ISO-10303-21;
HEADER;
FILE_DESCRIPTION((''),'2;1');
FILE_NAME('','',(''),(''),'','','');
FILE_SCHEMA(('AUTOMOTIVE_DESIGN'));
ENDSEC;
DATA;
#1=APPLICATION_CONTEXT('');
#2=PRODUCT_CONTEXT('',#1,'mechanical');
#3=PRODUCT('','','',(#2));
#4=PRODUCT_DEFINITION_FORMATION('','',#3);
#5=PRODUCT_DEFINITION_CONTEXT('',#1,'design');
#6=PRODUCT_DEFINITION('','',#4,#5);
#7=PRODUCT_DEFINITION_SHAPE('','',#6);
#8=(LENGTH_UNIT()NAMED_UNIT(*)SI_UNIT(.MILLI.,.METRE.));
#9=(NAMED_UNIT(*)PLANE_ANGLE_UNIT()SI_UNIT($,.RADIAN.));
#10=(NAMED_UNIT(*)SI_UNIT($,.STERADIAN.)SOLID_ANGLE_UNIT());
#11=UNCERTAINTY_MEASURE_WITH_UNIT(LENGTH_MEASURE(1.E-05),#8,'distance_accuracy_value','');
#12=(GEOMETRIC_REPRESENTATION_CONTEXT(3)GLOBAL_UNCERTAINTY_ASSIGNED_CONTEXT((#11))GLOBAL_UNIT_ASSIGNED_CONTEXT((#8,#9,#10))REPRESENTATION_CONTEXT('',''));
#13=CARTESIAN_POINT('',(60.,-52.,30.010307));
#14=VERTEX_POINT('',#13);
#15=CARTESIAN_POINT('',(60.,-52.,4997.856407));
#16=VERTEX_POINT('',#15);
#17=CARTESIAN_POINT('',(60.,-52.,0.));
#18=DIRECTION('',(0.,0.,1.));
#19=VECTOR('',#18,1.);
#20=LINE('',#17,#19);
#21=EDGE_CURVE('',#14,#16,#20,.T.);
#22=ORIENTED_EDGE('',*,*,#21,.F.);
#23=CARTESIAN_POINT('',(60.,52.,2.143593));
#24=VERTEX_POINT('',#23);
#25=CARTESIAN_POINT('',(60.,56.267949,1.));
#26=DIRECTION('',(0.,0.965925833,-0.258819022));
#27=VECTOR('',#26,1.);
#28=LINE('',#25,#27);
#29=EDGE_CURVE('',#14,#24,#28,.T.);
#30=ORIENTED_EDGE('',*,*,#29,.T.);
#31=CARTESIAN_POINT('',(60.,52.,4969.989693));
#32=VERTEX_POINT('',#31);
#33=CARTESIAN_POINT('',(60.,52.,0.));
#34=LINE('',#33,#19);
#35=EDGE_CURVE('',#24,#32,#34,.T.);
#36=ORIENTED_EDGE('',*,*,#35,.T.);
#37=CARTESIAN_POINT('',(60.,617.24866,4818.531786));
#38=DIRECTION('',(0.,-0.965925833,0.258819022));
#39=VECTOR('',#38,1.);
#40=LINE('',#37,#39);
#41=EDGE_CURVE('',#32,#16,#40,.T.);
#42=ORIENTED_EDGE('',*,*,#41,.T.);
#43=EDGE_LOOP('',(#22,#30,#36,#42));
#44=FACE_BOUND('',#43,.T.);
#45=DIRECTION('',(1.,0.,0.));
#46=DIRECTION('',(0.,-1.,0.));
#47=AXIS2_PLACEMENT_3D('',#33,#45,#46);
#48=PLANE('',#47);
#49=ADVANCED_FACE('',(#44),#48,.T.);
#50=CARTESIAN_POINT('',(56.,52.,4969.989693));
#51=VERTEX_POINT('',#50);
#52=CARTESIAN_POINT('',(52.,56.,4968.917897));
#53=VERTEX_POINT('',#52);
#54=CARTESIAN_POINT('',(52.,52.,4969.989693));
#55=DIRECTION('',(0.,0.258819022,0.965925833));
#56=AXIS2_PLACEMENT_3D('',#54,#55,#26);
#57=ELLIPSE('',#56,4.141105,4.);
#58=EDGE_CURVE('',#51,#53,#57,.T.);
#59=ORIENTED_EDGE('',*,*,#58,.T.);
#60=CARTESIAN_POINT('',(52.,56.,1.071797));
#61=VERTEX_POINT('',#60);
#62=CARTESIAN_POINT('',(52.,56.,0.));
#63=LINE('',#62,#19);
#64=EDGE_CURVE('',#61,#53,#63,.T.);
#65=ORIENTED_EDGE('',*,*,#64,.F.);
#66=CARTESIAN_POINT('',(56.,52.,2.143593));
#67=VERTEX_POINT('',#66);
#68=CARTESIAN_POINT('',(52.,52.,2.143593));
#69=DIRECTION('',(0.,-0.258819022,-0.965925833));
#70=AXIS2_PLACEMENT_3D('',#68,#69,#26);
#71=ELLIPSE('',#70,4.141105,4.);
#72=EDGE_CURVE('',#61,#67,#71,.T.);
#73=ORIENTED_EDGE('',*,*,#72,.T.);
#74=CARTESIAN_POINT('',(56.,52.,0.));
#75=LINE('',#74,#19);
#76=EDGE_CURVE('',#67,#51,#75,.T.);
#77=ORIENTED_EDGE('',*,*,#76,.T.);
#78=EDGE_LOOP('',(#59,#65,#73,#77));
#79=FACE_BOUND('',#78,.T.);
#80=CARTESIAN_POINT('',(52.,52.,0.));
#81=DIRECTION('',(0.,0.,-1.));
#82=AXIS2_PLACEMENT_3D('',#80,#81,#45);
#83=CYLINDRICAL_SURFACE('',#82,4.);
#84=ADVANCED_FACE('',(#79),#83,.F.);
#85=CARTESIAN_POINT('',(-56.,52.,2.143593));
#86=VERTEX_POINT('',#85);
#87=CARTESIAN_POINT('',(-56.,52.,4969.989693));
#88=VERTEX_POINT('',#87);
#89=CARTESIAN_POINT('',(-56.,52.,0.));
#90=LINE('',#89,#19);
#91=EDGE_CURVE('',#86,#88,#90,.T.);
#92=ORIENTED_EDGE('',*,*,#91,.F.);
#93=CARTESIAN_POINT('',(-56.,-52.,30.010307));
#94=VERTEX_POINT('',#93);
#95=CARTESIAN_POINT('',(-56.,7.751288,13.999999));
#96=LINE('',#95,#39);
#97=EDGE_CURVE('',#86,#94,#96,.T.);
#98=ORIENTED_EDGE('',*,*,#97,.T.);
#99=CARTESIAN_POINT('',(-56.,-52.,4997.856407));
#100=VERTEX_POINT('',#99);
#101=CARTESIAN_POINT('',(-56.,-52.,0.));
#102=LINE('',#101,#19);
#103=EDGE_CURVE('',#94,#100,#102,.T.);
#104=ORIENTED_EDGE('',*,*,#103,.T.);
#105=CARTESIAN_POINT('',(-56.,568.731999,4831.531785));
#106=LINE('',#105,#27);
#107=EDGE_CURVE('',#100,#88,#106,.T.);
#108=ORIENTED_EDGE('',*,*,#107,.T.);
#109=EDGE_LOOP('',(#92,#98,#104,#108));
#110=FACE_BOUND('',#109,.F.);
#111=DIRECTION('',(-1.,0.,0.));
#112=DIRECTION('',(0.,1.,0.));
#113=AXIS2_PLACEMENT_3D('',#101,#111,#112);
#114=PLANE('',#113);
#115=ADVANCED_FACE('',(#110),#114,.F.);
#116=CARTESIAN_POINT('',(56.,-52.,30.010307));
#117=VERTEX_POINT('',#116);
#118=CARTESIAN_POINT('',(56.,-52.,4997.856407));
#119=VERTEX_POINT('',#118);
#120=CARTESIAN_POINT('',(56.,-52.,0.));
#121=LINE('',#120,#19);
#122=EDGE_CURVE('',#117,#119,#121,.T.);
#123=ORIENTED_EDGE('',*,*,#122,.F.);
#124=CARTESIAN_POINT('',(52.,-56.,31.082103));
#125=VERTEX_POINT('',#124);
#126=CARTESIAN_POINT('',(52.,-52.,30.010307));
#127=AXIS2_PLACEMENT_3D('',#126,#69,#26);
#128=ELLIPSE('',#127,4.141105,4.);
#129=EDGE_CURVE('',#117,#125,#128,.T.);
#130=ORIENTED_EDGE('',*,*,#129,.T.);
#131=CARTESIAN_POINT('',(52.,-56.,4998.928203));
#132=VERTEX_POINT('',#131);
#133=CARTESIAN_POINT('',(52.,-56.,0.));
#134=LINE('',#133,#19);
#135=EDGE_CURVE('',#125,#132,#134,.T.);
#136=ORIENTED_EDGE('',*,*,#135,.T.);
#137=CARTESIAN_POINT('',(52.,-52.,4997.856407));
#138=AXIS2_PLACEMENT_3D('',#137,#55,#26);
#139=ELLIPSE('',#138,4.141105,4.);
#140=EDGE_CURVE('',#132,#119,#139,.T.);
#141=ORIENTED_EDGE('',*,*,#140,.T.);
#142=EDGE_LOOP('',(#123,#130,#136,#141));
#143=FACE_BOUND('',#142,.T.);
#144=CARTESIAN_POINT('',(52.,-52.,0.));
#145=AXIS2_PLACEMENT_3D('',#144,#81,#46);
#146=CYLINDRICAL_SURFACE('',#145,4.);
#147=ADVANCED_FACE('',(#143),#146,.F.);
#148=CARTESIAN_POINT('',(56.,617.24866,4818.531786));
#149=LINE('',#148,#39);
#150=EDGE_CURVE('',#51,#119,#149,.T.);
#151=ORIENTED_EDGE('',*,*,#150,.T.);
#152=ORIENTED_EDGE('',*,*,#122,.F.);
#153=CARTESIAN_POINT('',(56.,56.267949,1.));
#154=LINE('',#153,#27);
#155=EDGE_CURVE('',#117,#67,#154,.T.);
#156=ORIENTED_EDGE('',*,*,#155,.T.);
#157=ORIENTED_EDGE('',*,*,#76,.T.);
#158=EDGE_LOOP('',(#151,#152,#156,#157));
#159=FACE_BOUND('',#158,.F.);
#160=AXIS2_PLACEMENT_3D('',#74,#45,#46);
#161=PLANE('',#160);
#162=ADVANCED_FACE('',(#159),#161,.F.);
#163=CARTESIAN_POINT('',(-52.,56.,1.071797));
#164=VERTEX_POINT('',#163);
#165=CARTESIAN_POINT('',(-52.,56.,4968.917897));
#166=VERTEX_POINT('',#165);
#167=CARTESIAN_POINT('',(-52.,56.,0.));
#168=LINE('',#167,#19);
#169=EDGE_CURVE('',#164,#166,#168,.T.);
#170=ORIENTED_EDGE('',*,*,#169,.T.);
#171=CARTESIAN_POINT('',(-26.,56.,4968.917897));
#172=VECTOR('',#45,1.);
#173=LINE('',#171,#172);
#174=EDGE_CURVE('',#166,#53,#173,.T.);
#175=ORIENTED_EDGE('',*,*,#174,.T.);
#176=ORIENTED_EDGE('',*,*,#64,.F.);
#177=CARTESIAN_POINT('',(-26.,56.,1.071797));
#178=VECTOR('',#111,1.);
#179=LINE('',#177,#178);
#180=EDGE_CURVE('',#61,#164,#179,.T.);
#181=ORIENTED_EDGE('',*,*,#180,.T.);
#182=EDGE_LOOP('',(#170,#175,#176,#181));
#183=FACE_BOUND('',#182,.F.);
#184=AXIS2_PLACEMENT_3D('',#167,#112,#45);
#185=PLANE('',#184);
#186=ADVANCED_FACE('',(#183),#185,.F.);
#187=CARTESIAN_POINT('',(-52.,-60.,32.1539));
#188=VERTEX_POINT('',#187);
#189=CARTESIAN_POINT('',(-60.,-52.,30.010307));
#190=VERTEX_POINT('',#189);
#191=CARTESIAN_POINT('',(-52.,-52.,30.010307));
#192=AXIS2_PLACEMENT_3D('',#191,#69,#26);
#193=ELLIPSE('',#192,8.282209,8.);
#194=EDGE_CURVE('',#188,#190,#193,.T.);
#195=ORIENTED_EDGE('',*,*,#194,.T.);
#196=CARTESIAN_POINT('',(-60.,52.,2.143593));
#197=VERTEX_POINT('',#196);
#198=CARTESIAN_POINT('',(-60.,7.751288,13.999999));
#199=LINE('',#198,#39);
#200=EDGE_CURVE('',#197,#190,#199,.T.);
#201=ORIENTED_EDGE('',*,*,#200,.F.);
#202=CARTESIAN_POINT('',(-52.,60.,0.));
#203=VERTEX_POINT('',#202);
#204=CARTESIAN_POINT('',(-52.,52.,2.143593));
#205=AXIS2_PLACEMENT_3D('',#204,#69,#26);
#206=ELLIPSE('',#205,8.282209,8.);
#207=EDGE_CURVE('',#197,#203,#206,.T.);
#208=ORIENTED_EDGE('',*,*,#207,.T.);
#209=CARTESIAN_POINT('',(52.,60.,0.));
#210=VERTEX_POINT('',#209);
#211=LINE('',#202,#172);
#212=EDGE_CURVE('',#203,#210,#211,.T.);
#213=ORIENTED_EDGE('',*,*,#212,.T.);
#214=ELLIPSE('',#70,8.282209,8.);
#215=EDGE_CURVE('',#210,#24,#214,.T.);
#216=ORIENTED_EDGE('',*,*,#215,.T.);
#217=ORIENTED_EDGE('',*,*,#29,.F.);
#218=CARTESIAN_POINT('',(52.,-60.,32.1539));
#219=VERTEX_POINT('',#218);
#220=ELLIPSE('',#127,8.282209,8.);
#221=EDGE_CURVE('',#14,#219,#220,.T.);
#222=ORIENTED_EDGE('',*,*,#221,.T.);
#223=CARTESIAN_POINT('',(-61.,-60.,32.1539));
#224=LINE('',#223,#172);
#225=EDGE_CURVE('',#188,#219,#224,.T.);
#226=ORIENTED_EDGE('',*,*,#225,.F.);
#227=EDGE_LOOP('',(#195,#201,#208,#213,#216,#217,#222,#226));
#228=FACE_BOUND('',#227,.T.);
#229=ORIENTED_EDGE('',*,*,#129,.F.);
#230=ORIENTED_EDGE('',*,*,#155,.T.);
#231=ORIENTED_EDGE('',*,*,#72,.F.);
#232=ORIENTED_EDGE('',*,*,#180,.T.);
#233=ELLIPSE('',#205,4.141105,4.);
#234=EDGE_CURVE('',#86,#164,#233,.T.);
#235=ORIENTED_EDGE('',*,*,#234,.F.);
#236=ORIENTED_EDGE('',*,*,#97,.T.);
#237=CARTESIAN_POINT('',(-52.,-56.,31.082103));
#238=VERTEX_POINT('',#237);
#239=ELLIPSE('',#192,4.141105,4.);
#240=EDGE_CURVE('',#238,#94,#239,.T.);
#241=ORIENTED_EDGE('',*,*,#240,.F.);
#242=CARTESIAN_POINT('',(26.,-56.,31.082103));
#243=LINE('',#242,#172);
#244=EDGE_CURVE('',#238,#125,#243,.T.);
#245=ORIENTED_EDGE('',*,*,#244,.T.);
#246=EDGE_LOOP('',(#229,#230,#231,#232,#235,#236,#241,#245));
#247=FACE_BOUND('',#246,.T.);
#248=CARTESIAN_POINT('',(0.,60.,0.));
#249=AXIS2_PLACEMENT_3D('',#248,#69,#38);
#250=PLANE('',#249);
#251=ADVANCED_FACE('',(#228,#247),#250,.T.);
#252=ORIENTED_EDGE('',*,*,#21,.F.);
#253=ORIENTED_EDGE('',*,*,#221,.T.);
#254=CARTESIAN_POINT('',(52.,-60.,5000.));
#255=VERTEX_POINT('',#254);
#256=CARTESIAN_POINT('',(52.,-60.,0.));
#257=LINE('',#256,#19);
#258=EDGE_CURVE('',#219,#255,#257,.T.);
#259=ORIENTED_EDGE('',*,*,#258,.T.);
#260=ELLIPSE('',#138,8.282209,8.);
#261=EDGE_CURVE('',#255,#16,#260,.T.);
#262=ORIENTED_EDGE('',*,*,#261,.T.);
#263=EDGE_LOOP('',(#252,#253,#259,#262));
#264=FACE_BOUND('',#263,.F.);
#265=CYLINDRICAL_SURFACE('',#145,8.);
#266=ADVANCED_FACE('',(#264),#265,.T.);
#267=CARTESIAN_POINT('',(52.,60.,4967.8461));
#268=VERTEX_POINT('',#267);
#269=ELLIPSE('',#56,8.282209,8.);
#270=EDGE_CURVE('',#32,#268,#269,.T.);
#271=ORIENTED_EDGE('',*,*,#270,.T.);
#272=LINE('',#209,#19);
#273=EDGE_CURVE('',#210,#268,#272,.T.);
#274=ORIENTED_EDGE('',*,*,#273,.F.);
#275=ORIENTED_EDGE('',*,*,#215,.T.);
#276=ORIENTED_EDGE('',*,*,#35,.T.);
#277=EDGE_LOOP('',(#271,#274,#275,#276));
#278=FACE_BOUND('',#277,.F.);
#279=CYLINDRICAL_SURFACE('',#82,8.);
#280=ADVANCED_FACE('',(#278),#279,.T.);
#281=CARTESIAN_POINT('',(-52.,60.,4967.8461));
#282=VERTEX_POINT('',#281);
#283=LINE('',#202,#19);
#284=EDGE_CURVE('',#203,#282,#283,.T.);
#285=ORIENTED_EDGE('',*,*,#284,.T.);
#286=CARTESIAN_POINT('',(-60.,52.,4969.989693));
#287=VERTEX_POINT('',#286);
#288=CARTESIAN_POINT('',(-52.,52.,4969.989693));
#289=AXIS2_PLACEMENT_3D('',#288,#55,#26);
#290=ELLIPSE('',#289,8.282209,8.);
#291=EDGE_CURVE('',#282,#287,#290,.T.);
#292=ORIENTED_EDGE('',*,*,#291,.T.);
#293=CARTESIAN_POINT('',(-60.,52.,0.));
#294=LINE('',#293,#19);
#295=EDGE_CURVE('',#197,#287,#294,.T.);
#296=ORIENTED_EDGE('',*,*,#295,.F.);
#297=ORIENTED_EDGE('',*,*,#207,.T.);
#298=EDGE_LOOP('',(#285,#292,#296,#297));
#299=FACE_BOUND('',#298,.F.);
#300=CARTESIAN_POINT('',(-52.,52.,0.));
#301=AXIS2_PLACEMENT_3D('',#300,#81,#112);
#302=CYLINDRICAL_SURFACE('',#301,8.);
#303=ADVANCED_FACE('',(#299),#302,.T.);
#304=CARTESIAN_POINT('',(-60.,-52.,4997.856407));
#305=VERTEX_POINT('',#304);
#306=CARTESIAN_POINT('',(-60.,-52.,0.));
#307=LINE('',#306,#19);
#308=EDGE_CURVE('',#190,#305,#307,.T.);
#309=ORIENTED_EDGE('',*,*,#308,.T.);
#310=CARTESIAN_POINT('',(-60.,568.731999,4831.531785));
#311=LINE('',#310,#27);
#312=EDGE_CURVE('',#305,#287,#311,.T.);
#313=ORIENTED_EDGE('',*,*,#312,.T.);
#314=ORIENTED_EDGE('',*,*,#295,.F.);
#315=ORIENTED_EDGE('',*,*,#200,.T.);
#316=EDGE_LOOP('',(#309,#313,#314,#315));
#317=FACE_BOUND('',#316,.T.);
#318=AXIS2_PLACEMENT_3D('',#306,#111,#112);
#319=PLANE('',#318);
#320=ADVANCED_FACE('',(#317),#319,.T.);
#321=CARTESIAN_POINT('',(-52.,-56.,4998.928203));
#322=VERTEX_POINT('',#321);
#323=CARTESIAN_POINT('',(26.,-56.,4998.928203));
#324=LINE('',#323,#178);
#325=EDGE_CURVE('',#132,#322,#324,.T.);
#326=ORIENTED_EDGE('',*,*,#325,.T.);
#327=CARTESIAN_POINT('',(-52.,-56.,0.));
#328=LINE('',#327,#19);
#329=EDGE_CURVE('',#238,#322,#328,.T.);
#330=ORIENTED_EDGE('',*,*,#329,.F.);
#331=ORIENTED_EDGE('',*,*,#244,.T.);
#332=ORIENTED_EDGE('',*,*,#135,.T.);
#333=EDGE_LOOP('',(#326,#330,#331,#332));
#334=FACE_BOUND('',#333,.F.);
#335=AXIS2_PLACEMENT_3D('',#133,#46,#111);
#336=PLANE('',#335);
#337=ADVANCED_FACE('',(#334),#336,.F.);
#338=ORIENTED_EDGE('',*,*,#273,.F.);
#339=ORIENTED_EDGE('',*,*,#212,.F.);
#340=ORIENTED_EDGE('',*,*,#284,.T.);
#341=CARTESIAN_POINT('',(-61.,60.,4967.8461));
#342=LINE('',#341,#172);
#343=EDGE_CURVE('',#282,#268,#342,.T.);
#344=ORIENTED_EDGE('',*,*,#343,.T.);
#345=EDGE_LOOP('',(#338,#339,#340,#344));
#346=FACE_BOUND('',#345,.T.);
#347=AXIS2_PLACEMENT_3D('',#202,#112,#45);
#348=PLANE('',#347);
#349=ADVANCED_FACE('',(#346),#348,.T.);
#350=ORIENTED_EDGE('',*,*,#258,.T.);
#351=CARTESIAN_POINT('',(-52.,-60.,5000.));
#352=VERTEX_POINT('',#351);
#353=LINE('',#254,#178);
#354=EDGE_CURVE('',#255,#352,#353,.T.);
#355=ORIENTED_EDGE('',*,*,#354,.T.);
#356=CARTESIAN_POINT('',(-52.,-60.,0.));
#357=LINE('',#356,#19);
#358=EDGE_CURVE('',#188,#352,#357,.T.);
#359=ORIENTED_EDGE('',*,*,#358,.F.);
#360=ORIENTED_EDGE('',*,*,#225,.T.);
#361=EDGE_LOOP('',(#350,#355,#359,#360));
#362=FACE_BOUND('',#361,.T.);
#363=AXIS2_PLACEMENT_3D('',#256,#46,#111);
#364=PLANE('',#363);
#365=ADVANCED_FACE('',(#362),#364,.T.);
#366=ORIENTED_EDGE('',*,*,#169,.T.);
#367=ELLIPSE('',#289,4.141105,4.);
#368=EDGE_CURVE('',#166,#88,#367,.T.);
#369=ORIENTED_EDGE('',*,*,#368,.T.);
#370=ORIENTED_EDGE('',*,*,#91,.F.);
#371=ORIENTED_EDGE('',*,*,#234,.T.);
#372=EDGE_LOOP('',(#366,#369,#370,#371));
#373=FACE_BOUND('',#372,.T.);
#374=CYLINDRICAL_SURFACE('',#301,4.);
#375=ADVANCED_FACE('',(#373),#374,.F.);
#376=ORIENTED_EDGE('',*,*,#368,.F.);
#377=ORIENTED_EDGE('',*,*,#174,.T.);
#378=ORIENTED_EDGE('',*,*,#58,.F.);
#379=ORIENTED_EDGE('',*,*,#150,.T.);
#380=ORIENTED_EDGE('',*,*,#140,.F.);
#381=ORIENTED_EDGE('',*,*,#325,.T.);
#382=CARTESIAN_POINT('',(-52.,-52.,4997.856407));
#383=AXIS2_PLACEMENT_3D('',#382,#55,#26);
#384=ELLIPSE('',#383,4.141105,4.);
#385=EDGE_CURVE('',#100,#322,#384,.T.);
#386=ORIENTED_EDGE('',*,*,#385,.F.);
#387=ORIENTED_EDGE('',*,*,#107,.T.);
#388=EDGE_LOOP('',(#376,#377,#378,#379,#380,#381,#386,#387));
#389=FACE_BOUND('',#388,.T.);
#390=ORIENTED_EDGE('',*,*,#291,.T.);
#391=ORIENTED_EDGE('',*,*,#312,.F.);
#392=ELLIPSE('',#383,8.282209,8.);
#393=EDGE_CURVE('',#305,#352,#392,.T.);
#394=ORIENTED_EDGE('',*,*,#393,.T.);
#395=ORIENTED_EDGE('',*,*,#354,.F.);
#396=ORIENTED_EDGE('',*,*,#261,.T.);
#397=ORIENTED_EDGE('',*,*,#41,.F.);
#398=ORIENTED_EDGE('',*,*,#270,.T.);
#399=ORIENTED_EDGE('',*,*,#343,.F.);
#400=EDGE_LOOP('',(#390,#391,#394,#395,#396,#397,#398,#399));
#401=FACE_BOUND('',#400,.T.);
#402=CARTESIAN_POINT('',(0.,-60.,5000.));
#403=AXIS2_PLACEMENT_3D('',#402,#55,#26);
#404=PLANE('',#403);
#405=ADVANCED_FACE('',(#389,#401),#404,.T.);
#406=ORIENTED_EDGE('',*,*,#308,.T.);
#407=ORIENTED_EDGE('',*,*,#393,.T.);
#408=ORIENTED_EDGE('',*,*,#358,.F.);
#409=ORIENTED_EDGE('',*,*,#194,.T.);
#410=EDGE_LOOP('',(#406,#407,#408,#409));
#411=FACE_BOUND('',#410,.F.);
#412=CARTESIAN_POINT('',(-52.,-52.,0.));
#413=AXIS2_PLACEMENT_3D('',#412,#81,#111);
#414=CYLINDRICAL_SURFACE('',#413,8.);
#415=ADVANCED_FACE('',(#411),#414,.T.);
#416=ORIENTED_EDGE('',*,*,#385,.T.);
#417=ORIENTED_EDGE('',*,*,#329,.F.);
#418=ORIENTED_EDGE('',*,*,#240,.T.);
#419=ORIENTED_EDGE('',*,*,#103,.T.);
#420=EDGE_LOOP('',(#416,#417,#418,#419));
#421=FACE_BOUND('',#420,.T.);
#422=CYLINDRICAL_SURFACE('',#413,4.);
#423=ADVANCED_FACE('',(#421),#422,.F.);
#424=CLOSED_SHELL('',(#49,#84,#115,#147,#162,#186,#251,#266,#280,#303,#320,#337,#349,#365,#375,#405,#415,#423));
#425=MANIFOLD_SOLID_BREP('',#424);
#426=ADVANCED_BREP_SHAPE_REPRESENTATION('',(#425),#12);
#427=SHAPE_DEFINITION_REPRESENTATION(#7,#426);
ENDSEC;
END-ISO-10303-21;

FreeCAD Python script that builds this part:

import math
import FreeCAD as App
import Part
import Sketcher
Q = App.Units.Quantity


def add_polygon(sketch, points):
    """Adds a closed chain of lines whose ends are joined by coincident constraints."""
    first, n = sketch.GeometryCount, len(points)
    for a, b in zip(points, points[1:] + points[:1]):
        sketch.addGeometry(Part.LineSegment(App.Vector(*a, 0), App.Vector(*b, 0)), False)
    for i in range(n):
        sketch.addConstraint(Sketcher.Constraint("Coincident", first + i, 2, first + (i + 1) % n, 1))

doc = App.newDocument("Part")
body = doc.addObject("PartDesign::Body", "Body")

sketch1 = body.newObject("Sketcher::SketchObject", "Sketch")
sketch1.AttachmentSupport = (doc.getObject("XY_Plane"), [""])
sketch1.MapMode = "FlatFace"
sketch1.addGeometry(Part.LineSegment(App.Vector(-60, 52, 0), App.Vector(-60, -52, 0)), False)
sketch1.addGeometry(Part.ArcOfCircle(Part.Circle(App.Vector(-52, -52, 0), App.Vector(0, 0, 1), 8), math.radians(180), math.radians(270)), False)
sketch1.addGeometry(Part.LineSegment(App.Vector(-52, -60, 0), App.Vector(52, -60, 0)), False)
sketch1.addGeometry(Part.ArcOfCircle(Part.Circle(App.Vector(52, -52, 0), App.Vector(0, 0, 1), 8), math.radians(-90), math.radians(0)), False)
sketch1.addGeometry(Part.LineSegment(App.Vector(60, -52, 0), App.Vector(60, 52, 0)), False)
sketch1.addGeometry(Part.ArcOfCircle(Part.Circle(App.Vector(52, 52, 0), App.Vector(0, 0, 1), 8), math.radians(0), math.radians(90)), False)
sketch1.addGeometry(Part.LineSegment(App.Vector(52, 60, 0), App.Vector(-52, 60, 0)), False)
sketch1.addGeometry(Part.ArcOfCircle(Part.Circle(App.Vector(-52, 52, 0), App.Vector(0, 0, 1), 8), math.radians(90), math.radians(180)), False)
sketch1.addGeometry(Part.ArcOfCircle(Part.Circle(App.Vector(-52, 52, 0), App.Vector(0, 0, 1), 4), math.radians(90), math.radians(180)), False)
sketch1.addGeometry(Part.LineSegment(App.Vector(-52, 56, 0), App.Vector(52, 56, 0)), False)
sketch1.addGeometry(Part.ArcOfCircle(Part.Circle(App.Vector(52, 52, 0), App.Vector(0, 0, 1), 4), math.radians(0), math.radians(90)), False)
sketch1.addGeometry(Part.LineSegment(App.Vector(56, 52, 0), App.Vector(56, -52, 0)), False)
sketch1.addGeometry(Part.ArcOfCircle(Part.Circle(App.Vector(52, -52, 0), App.Vector(0, 0, 1), 4), math.radians(-90), math.radians(0)), False)
sketch1.addGeometry(Part.LineSegment(App.Vector(52, -56, 0), App.Vector(-52, -56, 0)), False)
sketch1.addGeometry(Part.ArcOfCircle(Part.Circle(App.Vector(-52, -52, 0), App.Vector(0, 0, 1), 4), math.radians(180), math.radians(270)), False)
sketch1.addGeometry(Part.LineSegment(App.Vector(-56, -52, 0), App.Vector(-56, 52, 0)), False)
sketch1.addConstraint(Sketcher.Constraint("Tangent", 0, 2, 1, 1))
sketch1.addConstraint(Sketcher.Constraint("Tangent", 1, 2, 2, 1))
sketch1.addConstraint(Sketcher.Constraint("Tangent", 2, 2, 3, 1))
sketch1.addConstraint(Sketcher.Constraint("Tangent", 3, 2, 4, 1))
sketch1.addConstraint(Sketcher.Constraint("Tangent", 4, 2, 5, 1))
sketch1.addConstraint(Sketcher.Constraint("Tangent", 5, 2, 6, 1))
sketch1.addConstraint(Sketcher.Constraint("Tangent", 6, 2, 7, 1))
sketch1.addConstraint(Sketcher.Constraint("Tangent", 7, 2, 0, 1))
sketch1.addConstraint(Sketcher.Constraint("Tangent", 8, 1, 9, 1))
sketch1.addConstraint(Sketcher.Constraint("Tangent", 9, 2, 10, 2))
sketch1.addConstraint(Sketcher.Constraint("Tangent", 10, 1, 11, 1))
sketch1.addConstraint(Sketcher.Constraint("Tangent", 11, 2, 12, 2))
sketch1.addConstraint(Sketcher.Constraint("Tangent", 12, 1, 13, 1))
sketch1.addConstraint(Sketcher.Constraint("Tangent", 13, 2, 14, 2))
sketch1.addConstraint(Sketcher.Constraint("Tangent", 14, 1, 15, 1))
sketch1.addConstraint(Sketcher.Constraint("Tangent", 15, 2, 8, 2))
sketch1.addConstraint(Sketcher.Constraint("Vertical", 0))
sketch1.addConstraint(Sketcher.Constraint("Horizontal", 2))
sketch1.addConstraint(Sketcher.Constraint("Vertical", 4))
sketch1.addConstraint(Sketcher.Constraint("Horizontal", 6))
sketch1.addConstraint(Sketcher.Constraint("Horizontal", 9))
sketch1.addConstraint(Sketcher.Constraint("Vertical", 11))
sketch1.addConstraint(Sketcher.Constraint("Horizontal", 13))
sketch1.addConstraint(Sketcher.Constraint("Vertical", 15))
sketch1.addConstraint(Sketcher.Constraint("Coincident", 8, 3, 7, 3))
sketch1.addConstraint(Sketcher.Constraint("Coincident", 10, 3, 5, 3))
sketch1.addConstraint(Sketcher.Constraint("Coincident", 12, 3, 3, 3))
sketch1.addConstraint(Sketcher.Constraint("Equal", 1, 3))
sketch1.addConstraint(Sketcher.Constraint("Equal", 3, 5))
sketch1.addConstraint(Sketcher.Constraint("Equal", 5, 7))
sketch1.addConstraint(Sketcher.Constraint("Equal", 12, 14))
sketch1.addConstraint(Sketcher.Constraint("Symmetric", 1, 3, 5, 3, -1, 1))
sketch1.addConstraint(Sketcher.Constraint("Equal", 13, 0))
sketch1.addConstraint(Sketcher.Constraint("Radius", 1, 8.0))
sketch1.addConstraint(Sketcher.Constraint("Radius", 8, 4.0))
sketch1.addConstraint(Sketcher.Constraint("DistanceX", 0, 2, -1, 1, 60.0))
pad1 = body.newObject("PartDesign::Pad", "Pad")
pad1.Profile = sketch1
pad1.Length = 5000

sketch2 = body.newObject("Sketcher::SketchObject", "Sketch001")
sketch2.AttachmentSupport = (doc.getObject("YZ_Plane"), [""])
sketch2.MapMode = "FlatFace"
add_polygon(sketch2, [(-60, 0), (60, 0), (-60, 32.1539)])
add_polygon(sketch2, [(-60, 5000), (60, 4967.8461), (60, 5000)])
sketch2.addConstraint(Sketcher.Constraint("Horizontal", 0))
sketch2.addConstraint(Sketcher.Constraint("Vertical", 2))
sketch2.addConstraint(Sketcher.Constraint("Vertical", 4))
sketch2.addConstraint(Sketcher.Constraint("Horizontal", 5))
sketch2.addConstraint(Sketcher.Constraint("Symmetric", 0, 2, 2, 2, -1, 1))
sketch2.addConstraint(Sketcher.Constraint("Parallel", 1, 3))
sketch2.addConstraint(Sketcher.Constraint("Vertical", 0, 2, 3, 2))
sketch2.addConstraint(Sketcher.Constraint("Vertical", 2, 2, 5, 2))
sketch2.addConstraint(Sketcher.Constraint("Angle", 3, Q("-15 deg")))
sketch2.addConstraint(Sketcher.Constraint("DistanceX", 0, 1, 0, 2, 120.0))
sketch2.addConstraint(Sketcher.Constraint("DistanceY", -1, 1, 4, 2, 5000.0))
pocket1 = body.newObject("PartDesign::Pocket", "Pocket")
pocket1.Profile = sketch2
pocket1.Type = "ThroughAll"
pocket1.Midplane = True

doc.recompute()
